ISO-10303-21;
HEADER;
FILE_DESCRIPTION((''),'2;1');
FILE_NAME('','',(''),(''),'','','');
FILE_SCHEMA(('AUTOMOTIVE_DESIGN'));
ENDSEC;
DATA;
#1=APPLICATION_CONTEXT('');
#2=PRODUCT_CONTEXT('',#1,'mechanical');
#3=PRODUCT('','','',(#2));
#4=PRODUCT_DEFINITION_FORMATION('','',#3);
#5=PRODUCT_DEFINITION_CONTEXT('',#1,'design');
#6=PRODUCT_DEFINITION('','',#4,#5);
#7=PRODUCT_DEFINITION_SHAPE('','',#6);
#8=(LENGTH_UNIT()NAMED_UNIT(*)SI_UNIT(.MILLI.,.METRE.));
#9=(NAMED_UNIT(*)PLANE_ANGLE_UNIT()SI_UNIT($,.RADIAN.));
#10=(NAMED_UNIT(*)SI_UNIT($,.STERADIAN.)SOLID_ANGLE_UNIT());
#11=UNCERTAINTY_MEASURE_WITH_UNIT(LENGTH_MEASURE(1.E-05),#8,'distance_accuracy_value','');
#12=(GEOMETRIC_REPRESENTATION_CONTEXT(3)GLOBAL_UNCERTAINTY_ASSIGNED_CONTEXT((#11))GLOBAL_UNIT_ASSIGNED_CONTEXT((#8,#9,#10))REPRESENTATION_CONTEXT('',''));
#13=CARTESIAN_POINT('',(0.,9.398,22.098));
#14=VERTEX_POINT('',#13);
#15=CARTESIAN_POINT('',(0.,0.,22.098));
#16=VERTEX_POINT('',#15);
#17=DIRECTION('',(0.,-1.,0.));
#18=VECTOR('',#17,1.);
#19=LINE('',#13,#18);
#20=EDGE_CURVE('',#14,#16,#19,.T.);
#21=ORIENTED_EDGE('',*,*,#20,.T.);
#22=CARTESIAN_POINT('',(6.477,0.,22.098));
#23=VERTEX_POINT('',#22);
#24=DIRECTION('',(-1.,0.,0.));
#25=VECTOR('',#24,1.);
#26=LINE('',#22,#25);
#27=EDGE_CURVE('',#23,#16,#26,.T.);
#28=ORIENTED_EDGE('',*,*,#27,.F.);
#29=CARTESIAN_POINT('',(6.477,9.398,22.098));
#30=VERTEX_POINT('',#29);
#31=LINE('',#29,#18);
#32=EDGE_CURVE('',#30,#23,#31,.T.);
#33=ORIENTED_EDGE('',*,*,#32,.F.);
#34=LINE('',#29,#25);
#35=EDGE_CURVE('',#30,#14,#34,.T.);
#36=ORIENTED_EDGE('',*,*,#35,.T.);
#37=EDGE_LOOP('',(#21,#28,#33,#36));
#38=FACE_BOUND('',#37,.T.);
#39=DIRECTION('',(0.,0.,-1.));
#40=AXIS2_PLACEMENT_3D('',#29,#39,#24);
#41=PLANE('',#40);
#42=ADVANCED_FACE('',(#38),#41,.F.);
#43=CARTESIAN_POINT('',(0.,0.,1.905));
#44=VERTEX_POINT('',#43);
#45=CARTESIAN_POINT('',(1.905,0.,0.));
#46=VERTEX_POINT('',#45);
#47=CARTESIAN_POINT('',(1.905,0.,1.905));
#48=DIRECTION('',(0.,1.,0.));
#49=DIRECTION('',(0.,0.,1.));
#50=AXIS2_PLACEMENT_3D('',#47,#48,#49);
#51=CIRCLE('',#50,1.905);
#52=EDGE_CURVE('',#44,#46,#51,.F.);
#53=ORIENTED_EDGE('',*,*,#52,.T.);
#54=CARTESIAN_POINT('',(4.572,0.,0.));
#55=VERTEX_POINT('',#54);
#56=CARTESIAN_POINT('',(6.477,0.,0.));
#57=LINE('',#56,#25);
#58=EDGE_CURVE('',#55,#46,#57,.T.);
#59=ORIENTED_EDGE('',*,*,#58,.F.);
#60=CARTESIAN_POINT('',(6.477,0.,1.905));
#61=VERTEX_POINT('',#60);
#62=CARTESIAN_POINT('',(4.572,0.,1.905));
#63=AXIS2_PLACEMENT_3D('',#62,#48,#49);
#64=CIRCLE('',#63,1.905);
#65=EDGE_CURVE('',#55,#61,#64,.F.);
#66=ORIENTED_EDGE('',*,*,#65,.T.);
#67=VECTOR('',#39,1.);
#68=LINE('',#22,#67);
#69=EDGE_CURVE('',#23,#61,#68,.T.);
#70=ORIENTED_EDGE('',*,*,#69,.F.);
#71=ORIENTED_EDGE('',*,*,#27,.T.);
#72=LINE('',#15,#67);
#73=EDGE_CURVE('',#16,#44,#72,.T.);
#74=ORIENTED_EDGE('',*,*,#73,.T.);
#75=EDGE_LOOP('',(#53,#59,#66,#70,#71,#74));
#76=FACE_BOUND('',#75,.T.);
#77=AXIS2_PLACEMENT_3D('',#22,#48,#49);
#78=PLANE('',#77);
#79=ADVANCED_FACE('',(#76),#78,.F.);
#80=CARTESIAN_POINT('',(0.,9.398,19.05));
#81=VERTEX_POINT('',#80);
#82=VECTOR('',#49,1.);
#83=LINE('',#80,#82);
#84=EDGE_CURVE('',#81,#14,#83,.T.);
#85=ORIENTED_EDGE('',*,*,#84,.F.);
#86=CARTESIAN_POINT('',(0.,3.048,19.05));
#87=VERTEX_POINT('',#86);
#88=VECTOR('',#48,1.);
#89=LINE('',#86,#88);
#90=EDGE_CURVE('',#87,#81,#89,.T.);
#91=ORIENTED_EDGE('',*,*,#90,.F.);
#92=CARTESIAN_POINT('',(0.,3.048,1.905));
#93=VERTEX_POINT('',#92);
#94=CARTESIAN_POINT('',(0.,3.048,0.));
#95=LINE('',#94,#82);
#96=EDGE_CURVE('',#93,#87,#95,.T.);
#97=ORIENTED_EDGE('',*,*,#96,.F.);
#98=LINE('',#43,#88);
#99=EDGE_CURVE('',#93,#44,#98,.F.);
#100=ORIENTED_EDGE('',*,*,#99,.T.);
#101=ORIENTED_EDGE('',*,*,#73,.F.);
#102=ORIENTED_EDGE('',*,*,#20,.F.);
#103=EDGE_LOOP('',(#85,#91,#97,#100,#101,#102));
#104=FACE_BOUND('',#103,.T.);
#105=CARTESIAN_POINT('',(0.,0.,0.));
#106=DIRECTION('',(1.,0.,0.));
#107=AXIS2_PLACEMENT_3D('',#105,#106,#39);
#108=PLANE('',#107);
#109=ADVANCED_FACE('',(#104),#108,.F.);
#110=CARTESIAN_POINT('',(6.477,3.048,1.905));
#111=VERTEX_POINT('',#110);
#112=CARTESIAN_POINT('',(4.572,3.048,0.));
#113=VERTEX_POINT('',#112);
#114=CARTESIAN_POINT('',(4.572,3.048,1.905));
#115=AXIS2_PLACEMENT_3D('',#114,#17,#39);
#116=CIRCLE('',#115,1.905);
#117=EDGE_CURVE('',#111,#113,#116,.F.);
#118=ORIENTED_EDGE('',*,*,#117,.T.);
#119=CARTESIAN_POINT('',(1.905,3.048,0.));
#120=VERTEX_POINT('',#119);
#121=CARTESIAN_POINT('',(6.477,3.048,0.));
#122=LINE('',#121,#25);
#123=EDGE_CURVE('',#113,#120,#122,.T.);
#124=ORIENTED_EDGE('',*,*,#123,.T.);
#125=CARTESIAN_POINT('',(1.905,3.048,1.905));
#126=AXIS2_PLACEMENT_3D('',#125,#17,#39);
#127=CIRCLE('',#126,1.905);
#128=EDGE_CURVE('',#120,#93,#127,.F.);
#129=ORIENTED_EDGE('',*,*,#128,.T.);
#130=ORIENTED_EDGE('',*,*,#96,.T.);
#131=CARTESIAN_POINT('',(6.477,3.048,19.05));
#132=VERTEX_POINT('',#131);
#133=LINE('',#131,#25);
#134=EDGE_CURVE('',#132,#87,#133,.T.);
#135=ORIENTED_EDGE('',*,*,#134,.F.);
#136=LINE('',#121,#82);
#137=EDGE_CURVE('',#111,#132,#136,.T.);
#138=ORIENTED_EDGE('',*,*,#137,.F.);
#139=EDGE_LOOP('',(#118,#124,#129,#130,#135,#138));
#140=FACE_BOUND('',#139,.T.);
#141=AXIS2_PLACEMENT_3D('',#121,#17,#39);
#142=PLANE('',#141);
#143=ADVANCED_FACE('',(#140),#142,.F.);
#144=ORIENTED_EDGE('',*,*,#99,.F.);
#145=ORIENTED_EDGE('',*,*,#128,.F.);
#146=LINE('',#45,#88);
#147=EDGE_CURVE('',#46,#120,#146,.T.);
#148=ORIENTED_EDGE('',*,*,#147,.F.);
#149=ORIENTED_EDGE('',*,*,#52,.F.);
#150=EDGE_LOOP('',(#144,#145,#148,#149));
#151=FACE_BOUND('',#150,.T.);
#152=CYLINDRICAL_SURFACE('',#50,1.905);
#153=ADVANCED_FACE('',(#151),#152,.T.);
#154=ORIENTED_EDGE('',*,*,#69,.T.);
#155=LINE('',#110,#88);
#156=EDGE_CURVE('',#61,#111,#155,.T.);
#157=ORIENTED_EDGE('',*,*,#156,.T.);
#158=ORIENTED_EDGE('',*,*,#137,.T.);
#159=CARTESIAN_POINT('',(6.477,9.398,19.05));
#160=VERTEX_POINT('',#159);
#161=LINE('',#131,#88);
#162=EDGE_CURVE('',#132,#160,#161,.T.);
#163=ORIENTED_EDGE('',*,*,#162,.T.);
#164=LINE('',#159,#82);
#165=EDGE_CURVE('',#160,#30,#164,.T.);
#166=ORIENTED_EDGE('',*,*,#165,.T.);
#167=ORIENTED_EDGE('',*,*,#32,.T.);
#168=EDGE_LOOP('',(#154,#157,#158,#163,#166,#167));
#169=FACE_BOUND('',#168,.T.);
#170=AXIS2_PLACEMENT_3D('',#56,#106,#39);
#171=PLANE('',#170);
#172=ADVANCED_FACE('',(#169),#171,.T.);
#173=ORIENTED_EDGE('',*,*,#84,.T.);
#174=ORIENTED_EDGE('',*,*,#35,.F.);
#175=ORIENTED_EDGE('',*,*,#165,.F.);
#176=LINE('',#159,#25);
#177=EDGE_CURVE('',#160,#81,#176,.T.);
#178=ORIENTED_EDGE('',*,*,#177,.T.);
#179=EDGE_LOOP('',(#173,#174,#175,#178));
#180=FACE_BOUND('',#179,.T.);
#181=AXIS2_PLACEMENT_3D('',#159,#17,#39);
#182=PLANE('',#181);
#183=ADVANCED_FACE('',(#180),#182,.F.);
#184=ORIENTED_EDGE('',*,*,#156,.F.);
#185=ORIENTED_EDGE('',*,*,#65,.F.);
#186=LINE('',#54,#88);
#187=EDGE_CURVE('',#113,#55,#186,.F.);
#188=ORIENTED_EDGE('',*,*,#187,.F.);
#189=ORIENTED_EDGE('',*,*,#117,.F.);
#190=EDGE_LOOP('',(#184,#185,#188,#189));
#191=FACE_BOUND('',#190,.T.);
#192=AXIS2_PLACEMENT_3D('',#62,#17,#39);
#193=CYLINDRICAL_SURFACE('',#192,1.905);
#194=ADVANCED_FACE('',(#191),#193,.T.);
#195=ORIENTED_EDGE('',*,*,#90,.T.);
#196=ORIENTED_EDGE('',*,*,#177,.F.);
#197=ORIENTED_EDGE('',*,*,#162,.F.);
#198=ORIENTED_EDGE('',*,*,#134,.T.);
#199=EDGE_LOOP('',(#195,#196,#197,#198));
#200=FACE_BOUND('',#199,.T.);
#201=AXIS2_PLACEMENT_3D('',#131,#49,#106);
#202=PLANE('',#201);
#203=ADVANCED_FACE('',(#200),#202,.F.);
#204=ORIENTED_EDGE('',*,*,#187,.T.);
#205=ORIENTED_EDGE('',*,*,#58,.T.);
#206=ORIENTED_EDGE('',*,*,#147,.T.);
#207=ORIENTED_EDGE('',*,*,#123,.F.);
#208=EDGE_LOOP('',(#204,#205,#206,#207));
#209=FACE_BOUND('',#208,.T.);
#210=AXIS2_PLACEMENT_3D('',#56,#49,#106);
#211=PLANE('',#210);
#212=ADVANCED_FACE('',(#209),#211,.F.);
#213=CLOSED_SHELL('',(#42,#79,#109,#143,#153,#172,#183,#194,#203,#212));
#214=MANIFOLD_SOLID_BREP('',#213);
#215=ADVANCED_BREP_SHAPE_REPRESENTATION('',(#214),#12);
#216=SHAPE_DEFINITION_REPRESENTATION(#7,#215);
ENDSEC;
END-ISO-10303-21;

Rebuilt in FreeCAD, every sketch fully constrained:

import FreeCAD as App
import Part
import Sketcher
Q = App.Units.Quantity


def edges_at(feature, points):
    """Names of the edges that pass closest to the given points."""
    edges = feature.Shape.Edges
    near = lambda p: min(range(len(edges)), key=lambda i: edges[i].distToShape(Part.Vertex(*p))[0])
    return sorted({f"Edge{near(p) + 1}" for p in points})


def add_polygon(sketch, points):
    """Adds a closed chain of lines whose ends are joined by coincident constraints."""
    first, n = sketch.GeometryCount, len(points)
    for a, b in zip(points, points[1:] + points[:1]):
        sketch.addGeometry(Part.LineSegment(App.Vector(*a, 0), App.Vector(*b, 0)), False)
    for i in range(n):
        sketch.addConstraint(Sketcher.Constraint("Coincident", first + i, 2, first + (i + 1) % n, 1))

doc = App.newDocument("Part")
body = doc.addObject("PartDesign::Body", "Body")

# Sketch on YZ plane
sketch1 = doc.addObject("Sketcher::SketchObject", "Sketch")
body.addObject(sketch1)
sketch1.AttachmentSupport = (doc.YZ_Plane, [""])
sketch1.MapMode = "FlatFace"
add_polygon(sketch1, [(0, 22.1), (0, 0), (3, 0), (3, 19.1), (9.4, 19.1), (9.4, 22.1)])  # lines 0-5
sketch1.addConstraint([
    Sketcher.Constraint("Vertical", 0),
    Sketcher.Constraint("Horizontal", 1),
    Sketcher.Constraint("Vertical", 2),
    Sketcher.Constraint("Horizontal", 3),
    Sketcher.Constraint("Vertical", 4),
    Sketcher.Constraint("Horizontal", 5),
    Sketcher.Constraint("Coincident", 0, 2, -1, 1),
    Sketcher.Constraint("Equal", 1, 4),
    Sketcher.Constraint("DistanceX", 1, 1, 1, 2, Q("0.12 in")),
    Sketcher.Constraint("DistanceX", 3, 1, 3, 2, Q("0.25 in")),
    Sketcher.Constraint("DistanceY", 0, 2, 0, 1, Q("0.87 in")),
])
pad1 = doc.addObject("PartDesign::Pad", "Pad")
body.addObject(pad1)
pad1.Profile = sketch1
pad1.Length = Q("0.255 in")
doc.recompute()

fillet = doc.addObject("PartDesign::Fillet", "Fillet")
body.addObject(fillet)
fillet.Base = (pad1, edges_at(pad1, [(6.477, 1.524, 0), (0, 1.524, 0)]))
fillet.Radius = Q("0.075 in")

doc.recompute()
